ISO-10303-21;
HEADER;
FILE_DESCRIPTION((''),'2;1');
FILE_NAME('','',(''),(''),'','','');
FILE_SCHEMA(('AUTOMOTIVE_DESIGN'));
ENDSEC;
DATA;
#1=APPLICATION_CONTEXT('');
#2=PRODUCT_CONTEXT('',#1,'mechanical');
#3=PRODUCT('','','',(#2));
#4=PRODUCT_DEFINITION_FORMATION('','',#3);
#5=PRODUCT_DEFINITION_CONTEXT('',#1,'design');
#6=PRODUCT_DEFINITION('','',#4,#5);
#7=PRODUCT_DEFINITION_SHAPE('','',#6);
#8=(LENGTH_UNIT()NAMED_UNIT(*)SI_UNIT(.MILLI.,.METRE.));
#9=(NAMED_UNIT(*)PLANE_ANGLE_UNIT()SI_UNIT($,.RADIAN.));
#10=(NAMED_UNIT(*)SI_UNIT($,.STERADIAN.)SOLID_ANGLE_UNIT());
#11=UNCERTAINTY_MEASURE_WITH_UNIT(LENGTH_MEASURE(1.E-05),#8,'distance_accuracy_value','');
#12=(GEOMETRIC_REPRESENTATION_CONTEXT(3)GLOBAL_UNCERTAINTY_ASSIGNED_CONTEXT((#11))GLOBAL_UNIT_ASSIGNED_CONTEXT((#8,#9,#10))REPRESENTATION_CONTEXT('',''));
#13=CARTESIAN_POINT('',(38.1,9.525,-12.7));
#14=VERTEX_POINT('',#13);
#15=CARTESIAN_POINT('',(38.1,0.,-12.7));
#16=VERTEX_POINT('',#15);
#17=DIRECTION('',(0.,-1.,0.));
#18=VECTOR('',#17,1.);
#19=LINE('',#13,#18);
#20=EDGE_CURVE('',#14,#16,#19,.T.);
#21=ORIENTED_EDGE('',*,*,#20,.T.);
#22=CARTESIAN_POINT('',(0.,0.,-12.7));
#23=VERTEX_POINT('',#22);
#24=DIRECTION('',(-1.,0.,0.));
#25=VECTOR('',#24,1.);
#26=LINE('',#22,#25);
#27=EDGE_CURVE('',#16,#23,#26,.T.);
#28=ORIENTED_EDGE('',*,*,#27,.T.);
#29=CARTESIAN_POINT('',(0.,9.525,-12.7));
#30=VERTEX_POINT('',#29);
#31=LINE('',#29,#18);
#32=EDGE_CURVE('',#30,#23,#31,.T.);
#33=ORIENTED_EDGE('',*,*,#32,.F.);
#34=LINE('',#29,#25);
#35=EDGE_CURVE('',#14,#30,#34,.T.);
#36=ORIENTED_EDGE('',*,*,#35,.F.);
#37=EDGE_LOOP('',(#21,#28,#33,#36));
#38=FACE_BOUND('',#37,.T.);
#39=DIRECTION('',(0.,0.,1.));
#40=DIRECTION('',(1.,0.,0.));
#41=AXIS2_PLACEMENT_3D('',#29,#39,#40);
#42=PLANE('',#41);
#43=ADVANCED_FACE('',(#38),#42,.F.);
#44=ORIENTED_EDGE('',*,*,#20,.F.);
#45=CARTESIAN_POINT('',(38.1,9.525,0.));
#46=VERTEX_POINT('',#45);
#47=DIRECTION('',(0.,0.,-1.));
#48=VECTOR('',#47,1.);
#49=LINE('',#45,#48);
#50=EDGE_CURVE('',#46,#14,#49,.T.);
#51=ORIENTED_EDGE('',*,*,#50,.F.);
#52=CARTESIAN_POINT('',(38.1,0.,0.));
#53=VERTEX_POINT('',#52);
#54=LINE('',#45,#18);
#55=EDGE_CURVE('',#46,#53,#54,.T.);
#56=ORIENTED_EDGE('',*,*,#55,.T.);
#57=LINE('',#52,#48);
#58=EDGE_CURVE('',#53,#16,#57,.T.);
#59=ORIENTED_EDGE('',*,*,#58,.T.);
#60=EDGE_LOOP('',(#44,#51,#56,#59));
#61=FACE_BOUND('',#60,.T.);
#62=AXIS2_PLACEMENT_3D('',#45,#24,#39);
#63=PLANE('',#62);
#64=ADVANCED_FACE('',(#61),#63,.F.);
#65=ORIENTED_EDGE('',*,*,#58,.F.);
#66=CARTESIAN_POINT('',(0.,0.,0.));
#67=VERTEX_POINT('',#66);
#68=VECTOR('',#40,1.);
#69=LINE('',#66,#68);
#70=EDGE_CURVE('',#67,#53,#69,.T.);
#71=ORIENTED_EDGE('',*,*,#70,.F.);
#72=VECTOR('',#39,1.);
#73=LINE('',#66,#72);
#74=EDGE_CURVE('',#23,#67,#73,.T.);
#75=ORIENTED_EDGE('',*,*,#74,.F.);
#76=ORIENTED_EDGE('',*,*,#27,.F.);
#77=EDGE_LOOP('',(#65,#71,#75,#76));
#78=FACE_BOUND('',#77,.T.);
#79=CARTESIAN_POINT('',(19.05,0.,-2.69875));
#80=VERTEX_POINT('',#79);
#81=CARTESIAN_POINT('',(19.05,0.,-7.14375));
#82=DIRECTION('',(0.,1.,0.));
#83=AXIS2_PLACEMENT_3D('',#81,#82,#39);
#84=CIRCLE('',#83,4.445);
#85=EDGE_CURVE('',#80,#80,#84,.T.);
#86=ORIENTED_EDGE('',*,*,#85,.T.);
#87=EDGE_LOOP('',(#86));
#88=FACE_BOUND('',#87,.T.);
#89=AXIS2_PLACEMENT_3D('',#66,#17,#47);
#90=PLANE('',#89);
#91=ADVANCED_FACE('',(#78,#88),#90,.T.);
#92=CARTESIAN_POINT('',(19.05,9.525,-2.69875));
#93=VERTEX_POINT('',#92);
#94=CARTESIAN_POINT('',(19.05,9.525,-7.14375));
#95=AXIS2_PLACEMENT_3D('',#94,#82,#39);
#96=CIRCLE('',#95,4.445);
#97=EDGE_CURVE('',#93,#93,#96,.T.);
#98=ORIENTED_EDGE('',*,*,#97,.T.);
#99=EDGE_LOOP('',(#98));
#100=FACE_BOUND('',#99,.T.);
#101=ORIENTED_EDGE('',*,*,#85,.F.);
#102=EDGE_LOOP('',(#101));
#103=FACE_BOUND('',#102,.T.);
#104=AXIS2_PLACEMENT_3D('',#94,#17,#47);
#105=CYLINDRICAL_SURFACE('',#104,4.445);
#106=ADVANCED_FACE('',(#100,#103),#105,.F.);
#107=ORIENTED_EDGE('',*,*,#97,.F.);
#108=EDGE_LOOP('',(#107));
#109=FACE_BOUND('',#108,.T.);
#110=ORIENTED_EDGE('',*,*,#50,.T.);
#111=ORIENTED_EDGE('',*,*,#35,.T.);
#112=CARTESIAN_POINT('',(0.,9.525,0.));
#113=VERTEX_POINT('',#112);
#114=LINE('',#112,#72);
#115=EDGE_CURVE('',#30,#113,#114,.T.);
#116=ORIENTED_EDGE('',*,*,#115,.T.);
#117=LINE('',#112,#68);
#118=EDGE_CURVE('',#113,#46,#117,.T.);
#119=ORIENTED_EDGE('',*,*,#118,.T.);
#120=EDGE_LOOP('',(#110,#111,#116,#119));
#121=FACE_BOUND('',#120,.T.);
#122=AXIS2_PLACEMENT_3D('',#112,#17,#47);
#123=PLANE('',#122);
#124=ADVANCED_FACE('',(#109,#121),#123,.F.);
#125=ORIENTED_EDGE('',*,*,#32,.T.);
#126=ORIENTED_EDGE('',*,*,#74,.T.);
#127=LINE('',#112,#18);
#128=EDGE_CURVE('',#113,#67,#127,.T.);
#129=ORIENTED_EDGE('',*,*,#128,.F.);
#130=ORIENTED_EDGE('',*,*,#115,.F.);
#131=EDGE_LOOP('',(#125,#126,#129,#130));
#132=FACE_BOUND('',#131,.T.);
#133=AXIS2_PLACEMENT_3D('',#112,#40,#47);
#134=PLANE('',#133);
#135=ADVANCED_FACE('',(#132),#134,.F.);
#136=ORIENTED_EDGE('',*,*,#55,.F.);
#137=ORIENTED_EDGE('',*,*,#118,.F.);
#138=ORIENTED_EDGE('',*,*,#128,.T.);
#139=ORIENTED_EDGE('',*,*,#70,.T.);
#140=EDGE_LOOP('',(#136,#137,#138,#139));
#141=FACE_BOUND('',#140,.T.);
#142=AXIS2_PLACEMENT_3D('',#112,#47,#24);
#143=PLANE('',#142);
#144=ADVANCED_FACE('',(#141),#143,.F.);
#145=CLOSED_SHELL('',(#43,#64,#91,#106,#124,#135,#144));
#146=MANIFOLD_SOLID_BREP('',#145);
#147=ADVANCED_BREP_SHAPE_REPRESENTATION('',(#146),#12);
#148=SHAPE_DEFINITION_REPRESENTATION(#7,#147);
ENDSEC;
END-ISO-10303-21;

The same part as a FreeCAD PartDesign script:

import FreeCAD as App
import Part
import Sketcher
from FreeCAD import Vector
Q = App.Units.Quantity


def add_polygon(sketch, points):
    """Adds a closed chain of lines whose ends are joined by coincident constraints."""
    first, n = sketch.GeometryCount, len(points)
    for a, b in zip(points, points[1:] + points[:1]):
        sketch.addGeometry(Part.LineSegment(App.Vector(*a, 0), App.Vector(*b, 0)), False)
    for i in range(n):
        sketch.addConstraint(Sketcher.Constraint("Coincident", first + i, 2, first + (i + 1) % n, 1))

doc = App.newDocument("Part")
body = doc.addObject("PartDesign::Body", "Body")

sketch1 = doc.addObject("Sketcher::SketchObject", "Sketch")
body.addObject(sketch1)
sketch1.AttachmentSupport = (doc.XZ_Plane, [""])
sketch1.MapMode = "FlatFace"
add_polygon(sketch1, [(0, -12.7), (0, 0), (38.1, 0), (38.1, -12.7)])
sketch1.addGeometry(Part.Circle(Vector(19.05, -7.14375, 0), Vector(0, 0, 1), 4.445), False)
sketch1.addConstraint([
    Sketcher.Constraint("Vertical", 0),
    Sketcher.Constraint("Horizontal", 1),
    Sketcher.Constraint("Vertical", 2),
    Sketcher.Constraint("Horizontal", 3),
    Sketcher.Constraint("Coincident", 0, 2, -1, 1),
    Sketcher.Constraint("Diameter", 4, Q("0.35 in")),
    Sketcher.Constraint("DistanceX", 1, 1, 1, 2, Q("1.5 in")),
    Sketcher.Constraint("DistanceY", 0, 1, 0, 2, Q("0.5 in")),
    Sketcher.Constraint("DistanceX", -1, 1, 4, 3, Q("0.75 in")),
    Sketcher.Constraint("DistanceY", 4, 3, -1, 1, Q("0.28125 in")),
])
pad1 = doc.addObject("PartDesign::Pad", "Pad")
body.addObject(pad1)
pad1.Profile = sketch1
pad1.Length = Q("0.375 in")
pad1.Reversed = True

doc.recompute()
